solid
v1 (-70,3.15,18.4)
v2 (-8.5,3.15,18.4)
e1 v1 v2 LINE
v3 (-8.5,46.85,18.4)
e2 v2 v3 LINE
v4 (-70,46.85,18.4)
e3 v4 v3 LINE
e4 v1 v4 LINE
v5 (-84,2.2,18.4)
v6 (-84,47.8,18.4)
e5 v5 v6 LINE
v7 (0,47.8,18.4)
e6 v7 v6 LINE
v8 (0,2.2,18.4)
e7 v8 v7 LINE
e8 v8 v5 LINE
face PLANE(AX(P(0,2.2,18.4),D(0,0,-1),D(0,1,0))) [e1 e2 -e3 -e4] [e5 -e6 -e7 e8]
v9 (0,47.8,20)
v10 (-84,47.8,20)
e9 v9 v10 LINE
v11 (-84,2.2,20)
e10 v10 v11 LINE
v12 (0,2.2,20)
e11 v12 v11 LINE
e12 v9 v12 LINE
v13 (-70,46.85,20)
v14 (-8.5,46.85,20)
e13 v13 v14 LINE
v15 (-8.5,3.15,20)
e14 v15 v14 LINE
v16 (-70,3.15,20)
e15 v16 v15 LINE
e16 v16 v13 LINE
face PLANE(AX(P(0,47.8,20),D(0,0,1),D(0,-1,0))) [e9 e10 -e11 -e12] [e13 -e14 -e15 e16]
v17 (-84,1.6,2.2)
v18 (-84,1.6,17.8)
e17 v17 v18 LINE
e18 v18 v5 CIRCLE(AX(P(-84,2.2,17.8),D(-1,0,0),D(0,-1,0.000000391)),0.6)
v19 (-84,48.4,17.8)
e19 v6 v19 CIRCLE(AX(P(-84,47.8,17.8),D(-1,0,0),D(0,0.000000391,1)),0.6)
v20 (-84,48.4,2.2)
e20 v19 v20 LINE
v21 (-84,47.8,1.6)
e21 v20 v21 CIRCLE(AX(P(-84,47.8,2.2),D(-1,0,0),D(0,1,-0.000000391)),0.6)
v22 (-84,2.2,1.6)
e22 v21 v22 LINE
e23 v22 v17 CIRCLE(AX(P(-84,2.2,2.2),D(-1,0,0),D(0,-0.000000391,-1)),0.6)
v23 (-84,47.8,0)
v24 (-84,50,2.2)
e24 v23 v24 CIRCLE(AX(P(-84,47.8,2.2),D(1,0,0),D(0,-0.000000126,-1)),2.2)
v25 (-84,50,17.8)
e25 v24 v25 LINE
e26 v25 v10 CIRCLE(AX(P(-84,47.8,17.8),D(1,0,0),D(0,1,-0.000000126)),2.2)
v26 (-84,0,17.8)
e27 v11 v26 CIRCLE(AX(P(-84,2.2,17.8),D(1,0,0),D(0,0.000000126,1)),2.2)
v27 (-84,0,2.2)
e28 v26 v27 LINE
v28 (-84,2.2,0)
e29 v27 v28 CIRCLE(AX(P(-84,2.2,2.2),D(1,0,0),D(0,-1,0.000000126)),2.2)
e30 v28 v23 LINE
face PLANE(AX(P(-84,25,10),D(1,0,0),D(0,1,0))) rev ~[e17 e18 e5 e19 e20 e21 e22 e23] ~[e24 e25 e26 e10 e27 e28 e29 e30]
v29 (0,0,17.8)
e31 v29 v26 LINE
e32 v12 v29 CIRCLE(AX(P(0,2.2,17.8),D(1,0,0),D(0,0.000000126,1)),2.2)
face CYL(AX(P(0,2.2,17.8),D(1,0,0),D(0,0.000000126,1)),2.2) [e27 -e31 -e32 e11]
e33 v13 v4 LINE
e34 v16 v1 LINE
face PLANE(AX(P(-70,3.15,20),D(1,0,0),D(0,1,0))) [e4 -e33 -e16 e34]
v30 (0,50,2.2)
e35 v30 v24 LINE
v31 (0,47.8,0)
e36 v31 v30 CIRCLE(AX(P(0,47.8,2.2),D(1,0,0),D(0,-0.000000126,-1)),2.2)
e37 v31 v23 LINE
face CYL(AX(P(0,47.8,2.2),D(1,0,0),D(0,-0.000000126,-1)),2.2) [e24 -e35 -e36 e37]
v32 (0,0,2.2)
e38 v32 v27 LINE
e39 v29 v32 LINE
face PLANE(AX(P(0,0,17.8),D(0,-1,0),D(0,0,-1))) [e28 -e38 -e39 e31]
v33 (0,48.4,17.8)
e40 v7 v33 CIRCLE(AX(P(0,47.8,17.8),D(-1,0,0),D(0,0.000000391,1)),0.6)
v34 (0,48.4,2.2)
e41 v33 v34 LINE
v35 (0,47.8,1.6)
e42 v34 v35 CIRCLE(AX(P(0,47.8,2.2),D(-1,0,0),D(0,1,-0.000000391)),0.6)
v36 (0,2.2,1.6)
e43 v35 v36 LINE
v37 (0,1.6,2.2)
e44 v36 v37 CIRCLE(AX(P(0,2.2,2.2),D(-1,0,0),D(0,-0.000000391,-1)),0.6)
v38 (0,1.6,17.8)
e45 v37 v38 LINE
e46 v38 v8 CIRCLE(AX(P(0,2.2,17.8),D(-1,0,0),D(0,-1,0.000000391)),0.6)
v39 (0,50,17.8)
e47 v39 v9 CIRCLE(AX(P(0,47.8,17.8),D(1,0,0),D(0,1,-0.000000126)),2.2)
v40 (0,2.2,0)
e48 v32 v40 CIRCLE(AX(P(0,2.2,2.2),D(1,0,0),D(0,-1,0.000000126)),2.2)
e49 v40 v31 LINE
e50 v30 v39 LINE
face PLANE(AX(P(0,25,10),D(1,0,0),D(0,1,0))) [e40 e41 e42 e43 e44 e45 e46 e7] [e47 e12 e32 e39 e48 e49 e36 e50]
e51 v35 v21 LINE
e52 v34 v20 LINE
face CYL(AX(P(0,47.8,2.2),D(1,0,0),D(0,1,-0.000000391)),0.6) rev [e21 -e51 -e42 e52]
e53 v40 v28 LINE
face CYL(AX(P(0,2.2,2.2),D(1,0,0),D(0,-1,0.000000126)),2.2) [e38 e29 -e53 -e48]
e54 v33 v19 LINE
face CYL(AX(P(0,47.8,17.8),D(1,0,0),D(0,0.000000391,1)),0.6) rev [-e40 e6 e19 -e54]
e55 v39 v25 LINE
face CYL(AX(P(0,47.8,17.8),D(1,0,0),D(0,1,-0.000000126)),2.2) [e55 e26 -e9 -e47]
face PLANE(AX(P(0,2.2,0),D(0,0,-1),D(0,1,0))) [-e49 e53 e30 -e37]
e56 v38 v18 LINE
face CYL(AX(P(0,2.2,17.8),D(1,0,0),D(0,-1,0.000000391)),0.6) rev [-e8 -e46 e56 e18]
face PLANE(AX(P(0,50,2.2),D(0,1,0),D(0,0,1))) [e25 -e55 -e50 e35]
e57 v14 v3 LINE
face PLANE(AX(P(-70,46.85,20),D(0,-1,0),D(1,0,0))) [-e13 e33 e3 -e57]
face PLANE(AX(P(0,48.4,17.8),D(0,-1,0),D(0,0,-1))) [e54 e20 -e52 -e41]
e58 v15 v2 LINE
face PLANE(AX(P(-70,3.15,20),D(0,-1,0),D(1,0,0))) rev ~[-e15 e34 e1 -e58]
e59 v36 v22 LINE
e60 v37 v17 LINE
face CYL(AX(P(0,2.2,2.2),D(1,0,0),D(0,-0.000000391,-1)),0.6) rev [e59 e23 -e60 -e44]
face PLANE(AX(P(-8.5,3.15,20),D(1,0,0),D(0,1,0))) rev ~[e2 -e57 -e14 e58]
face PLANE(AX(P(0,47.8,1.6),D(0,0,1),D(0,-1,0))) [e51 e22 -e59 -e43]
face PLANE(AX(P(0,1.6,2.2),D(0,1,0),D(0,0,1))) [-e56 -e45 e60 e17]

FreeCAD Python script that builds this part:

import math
import FreeCAD as App
import Part
import Sketcher
from FreeCAD import Vector
Q = App.Units.Quantity

doc = App.newDocument("Part")
body = doc.addObject("PartDesign::Body", "Body")

sketch1 = body.newObject("Sketcher::SketchObject", "Sketch")
sketch1.AttachmentSupport = (doc.getObject("YZ_Plane"), [""])
sketch1.MapMode = "FlatFace"
sketch1.addGeometry([
    Part.LineSegment(Vector(47.8, 20, 0), Vector(2.2, 20, 0)),
    Part.ArcOfCircle(Part.Circle(Vector(2.2, 17.8, 0), Vector(0, 0, 1), 2.2), math.radians(90), math.radians(180)),
    Part.LineSegment(Vector(0, 17.8, 0), Vector(0, 2.2, 0)),
    Part.ArcOfCircle(Part.Circle(Vector(2.2, 2.2, 0), Vector(0, 0, 1), 2.2), math.radians(180), math.radians(270)),
    Part.LineSegment(Vector(2.2, 0, 0), Vector(47.8, 0, 0)),
    Part.ArcOfCircle(Part.Circle(Vector(47.8, 2.2, 0), Vector(0, 0, 1), 2.2), math.radians(-90), math.radians(0)),
    Part.LineSegment(Vector(50, 2.2, 0), Vector(50, 17.8, 0)),
    Part.ArcOfCircle(Part.Circle(Vector(47.8, 17.8, 0), Vector(0, 0, 1), 2.2), math.radians(0), math.radians(90)),
    Part.LineSegment(Vector(2.2, 18.4, 0), Vector(47.8, 18.4, 0)),
    Part.ArcOfCircle(Part.Circle(Vector(47.8, 17.8, 0), Vector(0, 0, 1), 0.6), math.radians(0), math.radians(90)),
    Part.LineSegment(Vector(48.4, 17.8, 0), Vector(48.4, 2.2, 0)),
    Part.ArcOfCircle(Part.Circle(Vector(47.8, 2.2, 0), Vector(0, 0, 1), 0.6), math.radians(-90), math.radians(0)),
    Part.LineSegment(Vector(47.8, 1.6, 0), Vector(2.2, 1.6, 0)),
    Part.ArcOfCircle(Part.Circle(Vector(2.2, 2.2, 0), Vector(0, 0, 1), 0.6), math.radians(-180), math.radians(-90)),
    Part.LineSegment(Vector(1.6, 2.2, 0), Vector(1.6, 17.8, 0)),
    Part.ArcOfCircle(Part.Circle(Vector(2.2, 17.8, 0), Vector(0, 0, 1), 0.6), math.radians(90), math.radians(180)),
], False)
sketch1.addConstraint([
    Sketcher.Constraint("Tangent", 0, 2, 1, 1),
    Sketcher.Constraint("Tangent", 1, 2, 2, 1),
    Sketcher.Constraint("Tangent", 2, 2, 3, 1),
    Sketcher.Constraint("Tangent", 3, 2, 4, 1),
    Sketcher.Constraint("Tangent", 4, 2, 5, 1),
    Sketcher.Constraint("Tangent", 5, 2, 6, 1),
    Sketcher.Constraint("Tangent", 6, 2, 7, 1),
    Sketcher.Constraint("Tangent", 7, 2, 0, 1),
    Sketcher.Constraint("Tangent", 8, 2, 9, 2),
    Sketcher.Constraint("Tangent", 9, 1, 10, 1),
    Sketcher.Constraint("Tangent", 10, 2, 11, 2),
    Sketcher.Constraint("Tangent", 11, 1, 12, 1),
    Sketcher.Constraint("Tangent", 12, 2, 13, 2),
    Sketcher.Constraint("Tangent", 13, 1, 14, 1),
    Sketcher.Constraint("Tangent", 14, 2, 15, 2),
    Sketcher.Constraint("Tangent", 15, 1, 8, 1),
    Sketcher.Constraint("Horizontal", 0),
    Sketcher.Constraint("Vertical", 2),
    Sketcher.Constraint("Horizontal", 4),
    Sketcher.Constraint("Vertical", 6),
    Sketcher.Constraint("Horizontal", 8),
    Sketcher.Constraint("Vertical", 10),
    Sketcher.Constraint("Horizontal", 12),
    Sketcher.Constraint("Vertical", 14),
    Sketcher.Constraint("Coincident", 9, 3, 7, 3),
    Sketcher.Constraint("Coincident", 11, 3, 5, 3),
    Sketcher.Constraint("Coincident", 13, 3, 3, 3),
    Sketcher.Constraint("Equal", 1, 3),
    Sketcher.Constraint("Equal", 3, 5),
    Sketcher.Constraint("Equal", 5, 7),
    Sketcher.Constraint("Equal", 13, 15),
    Sketcher.Constraint("PointOnObject", 1, 2, -2),
    Sketcher.Constraint("PointOnObject", 3, 2, -1),
    Sketcher.Constraint("Radius", 1, Q("2.2 mm")),
    Sketcher.Constraint("Radius", 9, Q("0.6 mm")),
    Sketcher.Constraint("DistanceX", 0, 2, 0, 1, Q("45.6 mm")),
    Sketcher.Constraint("DistanceY", 2, 2, 2, 1, Q("15.6 mm")),
])
pad1 = body.newObject("PartDesign::Pad", "Pad")
pad1.Profile = sketch1
pad1.Length = 84
pad1.Reversed = True

sketch2 = body.newObject("Sketcher::SketchObject", "Sketch001")
sketch2.AttachmentSupport = (doc.getObject("XY_Plane"), [""])
sketch2.MapMode = "FlatFace"
sketch2.AttachmentOffset = App.Placement(Vector(0, 0, 20), App.Rotation())
sketch2.addGeometry([
    Part.LineSegment(Vector(-70, 47, 0), Vector(-70, 3, 0)),
    Part.LineSegment(Vector(-70, 3, 0), Vector(-8, 3, 0)),
    Part.LineSegment(Vector(-8, 3, 0), Vector(-8, 47, 0)),
    Part.LineSegment(Vector(-8, 47, 0), Vector(-70, 47, 0)),
], False)
sketch2.addConstraint([
    Sketcher.Constraint("Coincident", 0, 2, 1, 1),
    Sketcher.Constraint("Coincident", 1, 2, 2, 1),
    Sketcher.Constraint("Coincident", 2, 2, 3, 1),
    Sketcher.Constraint("Coincident", 3, 2, 0, 1),
    Sketcher.Constraint("Vertical", 0),
    Sketcher.Constraint("Horizontal", 1),
    Sketcher.Constraint("Vertical", 2),
    Sketcher.Constraint("Horizontal", 3),
    Sketcher.Constraint("DistanceX", 1, 1, 1, 2, Q("61.5 mm")),
    Sketcher.Constraint("DistanceY", 0, 2, 0, 1, Q("43.7 mm")),
    Sketcher.Constraint("DistanceX", 0, 2, -1, 1, Q("70 mm")),
    Sketcher.Constraint("DistanceY", -1, 1, 0, 2, Q("3.15 mm")),
])
pocket1 = body.newObject("PartDesign::Pocket", "Pocket")
pocket1.Profile = sketch2
pocket1.Length = 1.6

doc.recompute()
